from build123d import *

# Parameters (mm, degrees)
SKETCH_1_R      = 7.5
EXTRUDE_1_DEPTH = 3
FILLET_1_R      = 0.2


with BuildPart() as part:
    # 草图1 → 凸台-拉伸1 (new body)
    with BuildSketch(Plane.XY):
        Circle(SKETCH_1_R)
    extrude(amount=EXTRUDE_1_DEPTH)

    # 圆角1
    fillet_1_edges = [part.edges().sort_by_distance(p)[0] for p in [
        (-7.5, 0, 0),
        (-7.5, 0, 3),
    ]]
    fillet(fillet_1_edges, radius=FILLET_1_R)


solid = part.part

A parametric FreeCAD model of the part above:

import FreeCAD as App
import Part
import Sketcher
from FreeCAD import Vector
Q = App.Units.Quantity


def edges_at(feature, points):
    """Names of the edges that pass closest to the given points."""
    edges = feature.Shape.Edges
    near = lambda p: min(range(len(edges)), key=lambda i: edges[i].distToShape(Part.Vertex(*p))[0])
    return sorted({f"Edge{near(p) + 1}" for p in points})

doc = App.newDocument("Part")
body = doc.addObject("PartDesign::Body", "Body")

sketch1 = doc.addObject("Sketcher::SketchObject", "Sketch")
body.addObject(sketch1)
sketch1.AttachmentSupport = (doc.XY_Plane, [""])
sketch1.MapMode = "FlatFace"
sketch1.addGeometry(Part.Circle(Vector(0, 0, 0), Vector(0, 0, 1), 7.5), False)
sketch1.addConstraint(Sketcher.Constraint("Coincident", 0, 3, -1, 1))
sketch1.addConstraint(Sketcher.Constraint("Diameter", 0, Q("15 mm")))
pad1 = doc.addObject("PartDesign::Pad", "Pad")
body.addObject(pad1)
pad1.Profile = sketch1
pad1.Length = 3
doc.recompute()

fillet = doc.addObject("PartDesign::Fillet", "Fillet")
body.addObject(fillet)
fillet.Base = (pad1, edges_at(pad1, [(-7.5, 0, 0), (-7.5, 0, 3)]))
fillet.Radius = 0.2

doc.recompute()
